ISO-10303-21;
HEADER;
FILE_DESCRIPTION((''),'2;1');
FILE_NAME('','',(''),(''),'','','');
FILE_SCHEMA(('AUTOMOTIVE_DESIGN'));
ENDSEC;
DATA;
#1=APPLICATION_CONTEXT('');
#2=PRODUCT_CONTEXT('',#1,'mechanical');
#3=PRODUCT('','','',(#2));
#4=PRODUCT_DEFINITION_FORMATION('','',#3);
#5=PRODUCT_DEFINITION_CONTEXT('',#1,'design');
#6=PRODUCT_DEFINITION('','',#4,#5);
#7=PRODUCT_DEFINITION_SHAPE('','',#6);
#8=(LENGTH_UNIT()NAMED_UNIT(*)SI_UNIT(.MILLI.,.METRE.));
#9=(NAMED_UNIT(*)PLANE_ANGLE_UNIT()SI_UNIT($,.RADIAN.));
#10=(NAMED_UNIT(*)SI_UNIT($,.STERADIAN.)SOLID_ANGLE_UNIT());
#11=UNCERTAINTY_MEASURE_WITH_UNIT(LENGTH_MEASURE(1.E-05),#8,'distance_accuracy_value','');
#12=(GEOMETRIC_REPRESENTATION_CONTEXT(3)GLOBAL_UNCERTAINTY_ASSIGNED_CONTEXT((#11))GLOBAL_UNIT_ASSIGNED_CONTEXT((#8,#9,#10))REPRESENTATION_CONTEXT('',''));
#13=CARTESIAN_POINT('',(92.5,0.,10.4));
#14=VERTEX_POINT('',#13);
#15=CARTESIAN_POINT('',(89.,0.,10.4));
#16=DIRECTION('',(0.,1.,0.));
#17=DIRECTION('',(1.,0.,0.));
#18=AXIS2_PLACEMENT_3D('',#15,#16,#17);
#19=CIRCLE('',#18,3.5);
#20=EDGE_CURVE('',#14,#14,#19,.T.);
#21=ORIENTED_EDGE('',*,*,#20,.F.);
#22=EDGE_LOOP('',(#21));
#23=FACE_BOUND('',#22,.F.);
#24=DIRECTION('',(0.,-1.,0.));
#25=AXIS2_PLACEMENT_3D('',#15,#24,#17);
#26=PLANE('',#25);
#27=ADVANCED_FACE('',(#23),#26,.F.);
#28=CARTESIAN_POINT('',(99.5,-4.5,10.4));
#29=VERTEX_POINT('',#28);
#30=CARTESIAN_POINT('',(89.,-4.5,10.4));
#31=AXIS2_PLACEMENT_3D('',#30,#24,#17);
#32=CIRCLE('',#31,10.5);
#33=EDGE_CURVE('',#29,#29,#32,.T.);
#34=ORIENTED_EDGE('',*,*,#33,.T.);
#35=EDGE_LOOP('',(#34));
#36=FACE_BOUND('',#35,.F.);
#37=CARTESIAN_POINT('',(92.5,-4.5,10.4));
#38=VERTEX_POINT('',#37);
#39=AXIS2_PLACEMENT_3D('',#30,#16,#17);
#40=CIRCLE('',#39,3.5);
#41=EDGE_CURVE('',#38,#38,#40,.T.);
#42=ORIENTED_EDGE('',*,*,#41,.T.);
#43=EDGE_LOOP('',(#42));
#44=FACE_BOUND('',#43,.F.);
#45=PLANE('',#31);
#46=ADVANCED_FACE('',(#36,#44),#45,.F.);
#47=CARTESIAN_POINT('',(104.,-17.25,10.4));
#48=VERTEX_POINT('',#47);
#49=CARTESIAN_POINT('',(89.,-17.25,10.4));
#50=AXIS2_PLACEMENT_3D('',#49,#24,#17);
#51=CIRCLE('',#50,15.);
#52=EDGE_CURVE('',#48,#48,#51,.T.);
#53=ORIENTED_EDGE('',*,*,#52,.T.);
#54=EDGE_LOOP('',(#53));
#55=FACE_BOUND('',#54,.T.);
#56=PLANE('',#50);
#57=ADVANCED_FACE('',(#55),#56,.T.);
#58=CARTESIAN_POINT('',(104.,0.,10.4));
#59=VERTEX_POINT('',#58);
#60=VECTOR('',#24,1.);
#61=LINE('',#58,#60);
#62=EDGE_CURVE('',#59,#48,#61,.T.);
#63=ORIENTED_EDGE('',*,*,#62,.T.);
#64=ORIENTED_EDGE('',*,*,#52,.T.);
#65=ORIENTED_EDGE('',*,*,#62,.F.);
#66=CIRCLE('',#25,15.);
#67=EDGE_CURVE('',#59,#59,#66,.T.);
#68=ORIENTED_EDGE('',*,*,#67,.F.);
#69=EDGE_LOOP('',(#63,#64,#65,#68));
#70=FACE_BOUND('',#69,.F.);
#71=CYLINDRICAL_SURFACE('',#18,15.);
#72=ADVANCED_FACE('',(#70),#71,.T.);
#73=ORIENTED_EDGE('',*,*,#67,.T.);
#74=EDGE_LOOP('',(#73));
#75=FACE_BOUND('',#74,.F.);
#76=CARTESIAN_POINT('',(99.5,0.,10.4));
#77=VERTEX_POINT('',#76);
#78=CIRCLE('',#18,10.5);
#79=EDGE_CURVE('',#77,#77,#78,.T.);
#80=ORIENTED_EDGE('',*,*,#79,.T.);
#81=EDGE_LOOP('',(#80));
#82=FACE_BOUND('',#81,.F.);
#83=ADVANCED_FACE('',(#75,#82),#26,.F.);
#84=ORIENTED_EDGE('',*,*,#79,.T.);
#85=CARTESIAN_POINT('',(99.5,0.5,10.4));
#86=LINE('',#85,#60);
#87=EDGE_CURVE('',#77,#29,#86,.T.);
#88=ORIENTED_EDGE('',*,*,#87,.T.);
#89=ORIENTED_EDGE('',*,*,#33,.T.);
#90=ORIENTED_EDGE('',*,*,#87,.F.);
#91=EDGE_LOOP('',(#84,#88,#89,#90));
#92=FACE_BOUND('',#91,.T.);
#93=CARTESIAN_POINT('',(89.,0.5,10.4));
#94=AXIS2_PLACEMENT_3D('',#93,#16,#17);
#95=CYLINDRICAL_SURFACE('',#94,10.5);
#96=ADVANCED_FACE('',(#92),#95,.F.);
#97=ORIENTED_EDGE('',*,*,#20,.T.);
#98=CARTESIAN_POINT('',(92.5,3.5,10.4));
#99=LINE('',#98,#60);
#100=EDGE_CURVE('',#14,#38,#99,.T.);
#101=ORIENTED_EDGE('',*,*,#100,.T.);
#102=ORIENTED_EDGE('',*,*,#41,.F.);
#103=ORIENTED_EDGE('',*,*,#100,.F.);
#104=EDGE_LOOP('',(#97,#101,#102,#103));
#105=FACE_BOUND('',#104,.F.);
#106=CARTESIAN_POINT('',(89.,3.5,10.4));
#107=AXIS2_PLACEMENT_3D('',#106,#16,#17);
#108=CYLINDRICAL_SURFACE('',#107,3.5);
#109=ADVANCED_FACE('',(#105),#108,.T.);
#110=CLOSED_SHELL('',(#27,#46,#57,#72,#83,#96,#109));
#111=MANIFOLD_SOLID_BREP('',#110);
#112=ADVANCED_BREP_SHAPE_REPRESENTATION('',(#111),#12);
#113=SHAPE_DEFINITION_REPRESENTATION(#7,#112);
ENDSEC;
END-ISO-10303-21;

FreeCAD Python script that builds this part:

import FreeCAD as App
import Part
import Sketcher
from FreeCAD import Vector

doc = App.newDocument("Part")
params = doc.addObject("Spreadsheet::Sheet", "Params")
for row, (alias, value) in enumerate([
    ("sketch1_diameter", "7 mm"),
    ("pad1_length", "10 mm"),
    ("sketch2_diameter", "21 mm"),
    ("pad2_length", "5 mm"),
    ("sketch3_diameter", "30 mm"),
    ("pad3_length", "17.25 mm"),
], start=1):
    params.set(f"A{row}", alias)
    params.set(f"B{row}", "=" + value)
    params.setAlias(f"B{row}", alias)

body = doc.addObject("PartDesign::Body", "Body")

sketch1 = body.newObject("Sketcher::SketchObject", "Sketch")
sketch1.AttachmentSupport = (doc.getObject("XY_Plane"), [""])
sketch1.MapMode = "FlatFace"
sketch1.AttachmentOffset = App.Placement(Vector(0, 0, -3), App.Rotation())
sketch1.addGeometry(Part.Circle(Vector(0, 0, 0), Vector(0, 0, 1), 3.5), False)
sketch1.addConstraint([
    Sketcher.Constraint("Coincident", 0, 3, -1, 1),
    Sketcher.Constraint("Diameter", 0, 7.0),
])
sketch1.setExpression("Constraints[1]", "Params.sketch1_diameter")
pad1 = body.newObject("PartDesign::Pad", "Pad")
pad1.Profile = sketch1
pad1.setExpression("Length", "Params.pad1_length")
body2 = doc.addObject("PartDesign::Body", "Body001")

sketch2 = body2.newObject("Sketcher::SketchObject", "Sketch001")
sketch2.AttachmentSupport = (doc.getObject("XY_Plane001"), [""])
sketch2.MapMode = "FlatFace"
sketch2.addGeometry(Part.Circle(Vector(0, 0, 0), Vector(0, 0, 1), 10), False)
sketch2.addConstraint([
    Sketcher.Constraint("Coincident", 0, 3, -1, 1),
    Sketcher.Constraint("Diameter", 0, 21.0),
])
sketch2.setExpression("Constraints[1]", "Params.sketch2_diameter")
pad2 = body2.newObject("PartDesign::Pad", "Pad001")
pad2.Profile = sketch2
pad2.setExpression("Length", "Params.pad2_length")
doc.recompute()

boolean = body2.newObject("PartDesign::Boolean", "Boolean")
boolean.Type = "Cut"
boolean.addObjects([body])
body3 = doc.addObject("PartDesign::Body", "Body002")
doc.recompute()

body2.Placement = App.Placement(Vector(89, 0.5, 10.4), App.Rotation(Vector(1, 0, 0), 90))
boolean2 = body3.newObject("PartDesign::Boolean", "Boolean001")
boolean2.Type = "Fuse"
boolean2.addObjects([body2])
body4 = doc.addObject("PartDesign::Body", "Body003")

sketch3 = body4.newObject("Sketcher::SketchObject", "Sketch002")
sketch3.AttachmentSupport = (doc.getObject("XZ_Plane003"), [""])
sketch3.MapMode = "FlatFace"
sketch3.addGeometry(Part.Circle(Vector(89, 10, 0), Vector(0, 0, 1), 15), False)
sketch3.addConstraint([
    Sketcher.Constraint("Diameter", 0, 30.0),
    Sketcher.Constraint("DistanceX", -1, 1, 0, 3, 89.0),
    Sketcher.Constraint("DistanceY", -1, 1, 0, 3, 10.4),
])
sketch3.setExpression("Constraints[0]", "Params.sketch3_diameter")
pad3 = body4.newObject("PartDesign::Pad", "Pad002")
pad3.Profile = sketch3
pad3.setExpression("Length", "Params.pad3_length")
doc.recompute()

boolean3 = body4.newObject("PartDesign::Boolean", "Boolean002")
boolean3.Type = "Cut"
boolean3.addObjects([body3])

doc.recompute()
